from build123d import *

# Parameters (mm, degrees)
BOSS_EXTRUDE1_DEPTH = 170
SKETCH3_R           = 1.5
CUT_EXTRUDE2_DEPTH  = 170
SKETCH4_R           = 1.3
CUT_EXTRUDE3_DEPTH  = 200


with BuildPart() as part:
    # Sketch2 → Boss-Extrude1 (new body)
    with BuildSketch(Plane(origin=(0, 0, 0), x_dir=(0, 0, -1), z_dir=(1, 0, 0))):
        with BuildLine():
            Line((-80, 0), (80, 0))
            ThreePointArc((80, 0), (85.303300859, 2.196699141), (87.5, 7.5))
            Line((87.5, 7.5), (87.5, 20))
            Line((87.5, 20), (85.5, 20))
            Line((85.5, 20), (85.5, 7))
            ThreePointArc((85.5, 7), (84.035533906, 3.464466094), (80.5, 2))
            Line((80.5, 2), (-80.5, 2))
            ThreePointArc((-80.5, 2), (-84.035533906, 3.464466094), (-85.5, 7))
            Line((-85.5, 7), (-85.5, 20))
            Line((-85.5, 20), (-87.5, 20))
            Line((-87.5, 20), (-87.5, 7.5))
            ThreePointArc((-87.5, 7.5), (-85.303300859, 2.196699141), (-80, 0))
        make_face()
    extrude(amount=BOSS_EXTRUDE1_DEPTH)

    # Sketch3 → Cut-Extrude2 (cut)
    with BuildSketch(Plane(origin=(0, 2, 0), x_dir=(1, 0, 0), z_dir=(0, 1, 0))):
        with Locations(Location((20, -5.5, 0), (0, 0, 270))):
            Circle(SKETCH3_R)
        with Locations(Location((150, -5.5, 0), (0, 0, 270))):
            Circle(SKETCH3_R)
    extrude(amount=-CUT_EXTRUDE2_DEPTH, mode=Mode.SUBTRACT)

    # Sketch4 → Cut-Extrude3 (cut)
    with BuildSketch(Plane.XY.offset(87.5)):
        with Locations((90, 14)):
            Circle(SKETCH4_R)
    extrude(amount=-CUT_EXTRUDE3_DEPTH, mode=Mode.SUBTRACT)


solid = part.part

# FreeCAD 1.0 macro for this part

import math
import FreeCAD as App
import Part
import Sketcher
from FreeCAD import Vector

doc = App.newDocument("Part")
body = doc.addObject("PartDesign::Body", "Body")

sketch1 = body.newObject("Sketcher::SketchObject", "Sketch")
sketch1.AttachmentSupport = (doc.getObject("YZ_Plane"), [""])
sketch1.MapMode = "FlatFace"
sketch1.addGeometry([
    Part.LineSegment(Vector(0, 80, 0), Vector(0, -80, 0)),
    Part.ArcOfCircle(Part.Circle(Vector(7.5, -80, 0), Vector(0, 0, 1), 7.5), math.radians(180), math.radians(270)),
    Part.LineSegment(Vector(7.5, -87.5, 0), Vector(20, -87.5, 0)),
    Part.LineSegment(Vector(20, -87.5, 0), Vector(20, -85.5, 0)),
    Part.LineSegment(Vector(20, -85.5, 0), Vector(7, -85.5, 0)),
    Part.ArcOfCircle(Part.Circle(Vector(7, -80.5, 0), Vector(0, 0, 1), 5), math.radians(180), math.radians(270)),
    Part.LineSegment(Vector(2, -80.5, 0), Vector(2, 80.5, 0)),
    Part.ArcOfCircle(Part.Circle(Vector(7, 80.5, 0), Vector(0, 0, 1), 5), math.radians(90), math.radians(180)),
    Part.LineSegment(Vector(7, 85.5, 0), Vector(20, 85.5, 0)),
    Part.LineSegment(Vector(20, 85.5, 0), Vector(20, 87.5, 0)),
    Part.LineSegment(Vector(20, 87.5, 0), Vector(7.5, 87.5, 0)),
    Part.ArcOfCircle(Part.Circle(Vector(7.5, 80, 0), Vector(0, 0, 1), 7.5), math.radians(90), math.radians(180)),
], False)
sketch1.addConstraint([
    Sketcher.Constraint("Tangent", 0, 2, 1, 1),
    Sketcher.Constraint("Tangent", 1, 2, 2, 1),
    Sketcher.Constraint("Coincident", 2, 2, 3, 1),
    Sketcher.Constraint("Coincident", 3, 2, 4, 1),
    Sketcher.Constraint("Tangent", 4, 2, 5, 2),
    Sketcher.Constraint("Tangent", 5, 1, 6, 1),
    Sketcher.Constraint("Tangent", 6, 2, 7, 2),
    Sketcher.Constraint("Tangent", 7, 1, 8, 1),
    Sketcher.Constraint("Coincident", 8, 2, 9, 1),
    Sketcher.Constraint("Coincident", 9, 2, 10, 1),
    Sketcher.Constraint("Tangent", 10, 2, 11, 1),
    Sketcher.Constraint("Tangent", 11, 2, 0, 1),
    Sketcher.Constraint("Vertical", 0),
    Sketcher.Constraint("Horizontal", 2),
    Sketcher.Constraint("Vertical", 3),
    Sketcher.Constraint("Horizontal", 4),
    Sketcher.Constraint("Vertical", 6),
    Sketcher.Constraint("Horizontal", 8),
    Sketcher.Constraint("Vertical", 9),
    Sketcher.Constraint("Horizontal", 10),
    Sketcher.Constraint("Equal", 5, 7),
    Sketcher.Constraint("Equal", 1, 11),
    Sketcher.Constraint("Symmetric", 0, 2, 11, 2, -1, 1),
    Sketcher.Constraint("Symmetric", 3, 2, 8, 2, -1),
    Sketcher.Constraint("Radius", 5, 5.0),
    Sketcher.Constraint("Radius", 1, 7.5),
    Sketcher.Constraint("DistanceX", 4, 2, 4, 1, 13.0),
    Sketcher.Constraint("DistanceY", 0, 2, 0, 1, 160.0),
    Sketcher.Constraint("DistanceY", 3, 1, 3, 2, 2.0),
    Sketcher.Constraint("DistanceX", 2, 1, 2, 2, 12.5),
])
pad1 = body.newObject("PartDesign::Pad", "Pad")
pad1.Profile = sketch1
pad1.Length = 170

sketch2 = body.newObject("Sketcher::SketchObject", "Sketch001")
sketch2.AttachmentSupport = (doc.getObject("XZ_Plane"), [""])
sketch2.MapMode = "FlatFace"
sketch2.AttachmentOffset = App.Placement(Vector(0, 0, -2), App.Rotation())
sketch2.addGeometry([
    Part.Circle(Vector(20, 5.5, 0), Vector(0, 0, 1), 1.5),
    Part.Circle(Vector(150, 5.5, 0), Vector(0, 0, 1), 1.5),
], False)
sketch2.addConstraint([
    Sketcher.Constraint("Equal", 0, 1),
    Sketcher.Constraint("Horizontal", 0, 3, 1, 3),
    Sketcher.Constraint("Diameter", 0, 3.0),
    Sketcher.Constraint("DistanceX", -1, 1, 0, 3, 20.0),
    Sketcher.Constraint("DistanceX", -1, 1, 1, 3, 150.0),
    Sketcher.Constraint("DistanceY", -1, 1, 0, 3, 5.5),
])
pocket1 = body.newObject("PartDesign::Pocket", "Pocket")
pocket1.Profile = sketch2
pocket1.Length = 170
pocket1.Reversed = True

sketch3 = body.newObject("Sketcher::SketchObject", "Sketch002")
sketch3.AttachmentSupport = (doc.getObject("XY_Plane"), [""])
sketch3.MapMode = "FlatFace"
sketch3.AttachmentOffset = App.Placement(Vector(0, 0, 87.5), App.Rotation())
sketch3.addGeometry(Part.Circle(Vector(90, 14, 0), Vector(0, 0, 1), 1.3), False)
sketch3.addConstraint([
    Sketcher.Constraint("Diameter", 0, 2.6),
    Sketcher.Constraint("DistanceX", -1, 1, 0, 3, 90.0),
    Sketcher.Constraint("DistanceY", -1, 1, 0, 3, 14.0),
])
pocket2 = body.newObject("PartDesign::Pocket", "Pocket001")
pocket2.Profile = sketch3
pocket2.Length = 200

doc.recompute()
